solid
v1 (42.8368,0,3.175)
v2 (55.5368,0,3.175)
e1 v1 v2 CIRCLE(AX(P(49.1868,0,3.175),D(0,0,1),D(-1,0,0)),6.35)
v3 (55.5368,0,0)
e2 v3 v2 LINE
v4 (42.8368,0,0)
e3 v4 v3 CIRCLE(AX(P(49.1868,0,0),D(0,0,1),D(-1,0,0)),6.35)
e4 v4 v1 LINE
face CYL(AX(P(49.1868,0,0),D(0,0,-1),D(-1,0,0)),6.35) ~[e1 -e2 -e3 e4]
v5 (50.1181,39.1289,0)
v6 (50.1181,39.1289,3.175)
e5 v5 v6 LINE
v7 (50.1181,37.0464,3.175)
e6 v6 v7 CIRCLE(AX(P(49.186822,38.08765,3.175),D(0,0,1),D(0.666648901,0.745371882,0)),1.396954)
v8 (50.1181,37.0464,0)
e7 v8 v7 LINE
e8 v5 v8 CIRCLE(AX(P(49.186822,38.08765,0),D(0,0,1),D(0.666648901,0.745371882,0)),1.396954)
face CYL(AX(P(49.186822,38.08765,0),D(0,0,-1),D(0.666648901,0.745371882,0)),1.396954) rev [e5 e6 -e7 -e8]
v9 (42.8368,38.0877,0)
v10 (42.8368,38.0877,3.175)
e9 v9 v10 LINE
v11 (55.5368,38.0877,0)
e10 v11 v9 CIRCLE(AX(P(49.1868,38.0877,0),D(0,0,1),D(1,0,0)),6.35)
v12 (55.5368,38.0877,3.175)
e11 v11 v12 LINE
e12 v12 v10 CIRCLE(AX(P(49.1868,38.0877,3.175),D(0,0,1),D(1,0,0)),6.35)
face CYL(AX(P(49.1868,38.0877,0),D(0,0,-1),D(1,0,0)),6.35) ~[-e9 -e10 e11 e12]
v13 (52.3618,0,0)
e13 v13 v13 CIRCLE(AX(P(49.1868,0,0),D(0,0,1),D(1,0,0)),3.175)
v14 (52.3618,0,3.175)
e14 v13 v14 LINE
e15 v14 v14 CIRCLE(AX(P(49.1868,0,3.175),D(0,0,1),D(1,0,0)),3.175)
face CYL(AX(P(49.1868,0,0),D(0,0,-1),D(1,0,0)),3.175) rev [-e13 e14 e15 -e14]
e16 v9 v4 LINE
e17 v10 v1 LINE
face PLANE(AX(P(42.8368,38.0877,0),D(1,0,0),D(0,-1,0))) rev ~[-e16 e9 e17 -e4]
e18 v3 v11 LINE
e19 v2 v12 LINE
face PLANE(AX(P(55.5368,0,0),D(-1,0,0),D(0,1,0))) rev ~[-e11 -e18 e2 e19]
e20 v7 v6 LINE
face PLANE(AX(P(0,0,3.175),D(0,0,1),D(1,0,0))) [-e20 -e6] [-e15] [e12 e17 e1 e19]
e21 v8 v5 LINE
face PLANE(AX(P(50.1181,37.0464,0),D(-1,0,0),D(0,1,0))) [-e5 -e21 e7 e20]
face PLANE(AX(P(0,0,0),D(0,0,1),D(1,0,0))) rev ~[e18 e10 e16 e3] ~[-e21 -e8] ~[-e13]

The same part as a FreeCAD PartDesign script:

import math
import FreeCAD as App
import Part
import Sketcher
from FreeCAD import Vector
Q = App.Units.Quantity

doc = App.newDocument("Part")
body = doc.addObject("PartDesign::Body", "Body")

sketch1 = body.newObject("Sketcher::SketchObject", "Sketch")
sketch1.AttachmentSupport = (doc.getObject("XY_Plane"), [""])
sketch1.MapMode = "FlatFace"
sketch1.addGeometry(Part.ArcOfCircle(Part.Circle(Vector(49.2, 38.1, 0), Vector(0, 0, 1), 6.4), math.radians(0), math.radians(180)), False)
sketch1.addGeometry(Part.LineSegment(Vector(42.8, 38.1, 0), Vector(42.8, 0, 0)), False)
sketch1.addGeometry(Part.ArcOfCircle(Part.Circle(Vector(49.2, 0, 0), Vector(0, 0, 1), 6.4), math.radians(180), math.radians(360)), False)
sketch1.addGeometry(Part.LineSegment(Vector(55.5, 0, 0), Vector(55.5, 38.1, 0)), False)
sketch1.addGeometry(Part.Circle(Vector(49.2, 0, 0), Vector(0, 0, 1), 3.2), False)
sketch1.addGeometry(Part.ArcOfCircle(Part.Circle(Vector(49.2, 38.1, 0), Vector(0, 0, 1), 1.4), math.radians(48), math.radians(312)), False)
sketch1.addGeometry(Part.LineSegment(Vector(50.1, 39.1, 0), Vector(50.1, 37, 0)), False)
sketch1.addConstraint(Sketcher.Constraint("Tangent", 0, 2, 1, 1))
sketch1.addConstraint(Sketcher.Constraint("Tangent", 1, 2, 2, 1))
sketch1.addConstraint(Sketcher.Constraint("Tangent", 2, 2, 3, 1))
sketch1.addConstraint(Sketcher.Constraint("Tangent", 3, 2, 0, 1))
sketch1.addConstraint(Sketcher.Constraint("Coincident", 5, 1, 6, 1))
sketch1.addConstraint(Sketcher.Constraint("Coincident", 6, 2, 5, 2))
sketch1.addConstraint(Sketcher.Constraint("Vertical", 1))
sketch1.addConstraint(Sketcher.Constraint("Vertical", 3))
sketch1.addConstraint(Sketcher.Constraint("Vertical", 6))
sketch1.addConstraint(Sketcher.Constraint("Coincident", 4, 3, 2, 3))
sketch1.addConstraint(Sketcher.Constraint("Coincident", 5, 3, 0, 3))
sketch1.addConstraint(Sketcher.Constraint("PointOnObject", 2, 3, -1))
sketch1.addConstraint(Sketcher.Constraint("Radius", 0, Q("0.25 in")))
sketch1.addConstraint(Sketcher.Constraint("Radius", 5, Q("0.055 in")))
sketch1.addConstraint(Sketcher.Constraint("Diameter", 4, Q("0.25 in")))
sketch1.addConstraint(Sketcher.Constraint("DistanceY", 6, 2, 6, 1, Q("0.082 in")))
sketch1.addConstraint(Sketcher.Constraint("DistanceY", 1, 2, 1, 1, 38.0877))
sketch1.addConstraint(Sketcher.Constraint("DistanceX", -1, 1, 0, 3, Q("1.9365 in")))
pad1 = body.newObject("PartDesign::Pad", "Pad")
pad1.Profile = sketch1
pad1.Length = Q("0.125 in")

doc.recompute()
